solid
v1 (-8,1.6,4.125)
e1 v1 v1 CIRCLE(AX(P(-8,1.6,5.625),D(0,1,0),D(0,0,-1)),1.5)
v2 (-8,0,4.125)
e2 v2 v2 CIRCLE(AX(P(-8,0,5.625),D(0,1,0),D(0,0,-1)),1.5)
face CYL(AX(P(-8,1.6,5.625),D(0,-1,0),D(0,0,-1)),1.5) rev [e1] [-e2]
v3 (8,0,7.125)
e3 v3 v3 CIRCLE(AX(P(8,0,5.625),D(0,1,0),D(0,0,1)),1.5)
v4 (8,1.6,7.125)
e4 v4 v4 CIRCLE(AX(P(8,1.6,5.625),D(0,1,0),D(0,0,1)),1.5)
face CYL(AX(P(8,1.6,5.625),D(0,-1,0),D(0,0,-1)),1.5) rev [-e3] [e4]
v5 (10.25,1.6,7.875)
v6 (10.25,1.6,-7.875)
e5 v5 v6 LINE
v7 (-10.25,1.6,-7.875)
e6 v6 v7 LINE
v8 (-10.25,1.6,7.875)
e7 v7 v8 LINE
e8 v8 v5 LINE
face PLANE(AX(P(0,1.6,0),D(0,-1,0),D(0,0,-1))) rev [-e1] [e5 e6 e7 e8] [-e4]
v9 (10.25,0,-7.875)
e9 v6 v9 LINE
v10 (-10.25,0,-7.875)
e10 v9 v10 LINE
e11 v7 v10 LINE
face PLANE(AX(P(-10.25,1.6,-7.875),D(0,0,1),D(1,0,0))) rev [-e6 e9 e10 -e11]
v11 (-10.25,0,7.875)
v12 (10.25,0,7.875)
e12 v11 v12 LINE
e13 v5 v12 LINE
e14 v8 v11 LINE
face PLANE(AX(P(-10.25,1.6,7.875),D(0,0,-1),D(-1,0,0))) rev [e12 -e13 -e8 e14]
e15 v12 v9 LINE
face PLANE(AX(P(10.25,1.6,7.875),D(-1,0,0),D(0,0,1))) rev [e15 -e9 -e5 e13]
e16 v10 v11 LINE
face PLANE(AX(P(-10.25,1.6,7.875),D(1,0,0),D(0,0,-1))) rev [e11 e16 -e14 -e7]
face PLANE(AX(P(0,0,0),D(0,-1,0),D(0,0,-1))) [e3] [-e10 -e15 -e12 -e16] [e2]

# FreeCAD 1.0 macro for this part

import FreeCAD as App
import Part
import Sketcher
Q = App.Units.Quantity


def add_polygon(sketch, points):
    """Adds a closed chain of lines whose ends are joined by coincident constraints."""
    first, n = sketch.GeometryCount, len(points)
    for a, b in zip(points, points[1:] + points[:1]):
        sketch.addGeometry(Part.LineSegment(App.Vector(*a, 0), App.Vector(*b, 0)), False)
    for i in range(n):
        sketch.addConstraint(Sketcher.Constraint("Coincident", first + i, 2, first + (i + 1) % n, 1))

doc = App.newDocument("Part")
body = doc.addObject("PartDesign::Body", "Body")

# Sketch on XZ plane
sketch1 = doc.addObject("Sketcher::SketchObject", "Sketch")
body.addObject(sketch1)
sketch1.AttachmentSupport = (doc.XZ_Plane, [""])
sketch1.MapMode = "FlatFace"
add_polygon(sketch1, [(-10.2, -7.9), (-10.2, 7.9), (10.2, 7.9), (10.2, -7.9)])  # lines 0-3
sketch1.addGeometry(Part.Circle(App.Vector(-8, 5.6, 0), App.Vector(0, 0, 1), 1.5), False)  # 4
sketch1.addGeometry(Part.Circle(App.Vector(8, 5.6, 0), App.Vector(0, 0, 1), 1.5), False)  # 5
sketch1.addConstraint([
    Sketcher.Constraint("Vertical", 0),
    Sketcher.Constraint("Horizontal", 1),
    Sketcher.Constraint("Vertical", 2),
    Sketcher.Constraint("Horizontal", 3),
    Sketcher.Constraint("Equal", 4, 5),
    Sketcher.Constraint("Symmetric", 0, 2, 2, 2, -1, 1),
    Sketcher.Constraint("Symmetric", 4, 3, 5, 3, -2),
    Sketcher.Constraint("Diameter", 4, Q("3 mm")),
    Sketcher.Constraint("DistanceX", 1, 1, 1, 2, Q("20.5 mm")),
    Sketcher.Constraint("DistanceX", 4, 3, -1, 1, Q("8 mm")),
    Sketcher.Constraint("DistanceY", 0, 1, 0, 2, Q("15.75 mm")),
    Sketcher.Constraint("DistanceY", 2, 2, 5, 3, Q("13.5 mm")),
])
pad1 = doc.addObject("PartDesign::Pad", "Pad")
body.addObject(pad1)
pad1.Profile = sketch1
pad1.Length = 1.6
pad1.Reversed = True

doc.recompute()
